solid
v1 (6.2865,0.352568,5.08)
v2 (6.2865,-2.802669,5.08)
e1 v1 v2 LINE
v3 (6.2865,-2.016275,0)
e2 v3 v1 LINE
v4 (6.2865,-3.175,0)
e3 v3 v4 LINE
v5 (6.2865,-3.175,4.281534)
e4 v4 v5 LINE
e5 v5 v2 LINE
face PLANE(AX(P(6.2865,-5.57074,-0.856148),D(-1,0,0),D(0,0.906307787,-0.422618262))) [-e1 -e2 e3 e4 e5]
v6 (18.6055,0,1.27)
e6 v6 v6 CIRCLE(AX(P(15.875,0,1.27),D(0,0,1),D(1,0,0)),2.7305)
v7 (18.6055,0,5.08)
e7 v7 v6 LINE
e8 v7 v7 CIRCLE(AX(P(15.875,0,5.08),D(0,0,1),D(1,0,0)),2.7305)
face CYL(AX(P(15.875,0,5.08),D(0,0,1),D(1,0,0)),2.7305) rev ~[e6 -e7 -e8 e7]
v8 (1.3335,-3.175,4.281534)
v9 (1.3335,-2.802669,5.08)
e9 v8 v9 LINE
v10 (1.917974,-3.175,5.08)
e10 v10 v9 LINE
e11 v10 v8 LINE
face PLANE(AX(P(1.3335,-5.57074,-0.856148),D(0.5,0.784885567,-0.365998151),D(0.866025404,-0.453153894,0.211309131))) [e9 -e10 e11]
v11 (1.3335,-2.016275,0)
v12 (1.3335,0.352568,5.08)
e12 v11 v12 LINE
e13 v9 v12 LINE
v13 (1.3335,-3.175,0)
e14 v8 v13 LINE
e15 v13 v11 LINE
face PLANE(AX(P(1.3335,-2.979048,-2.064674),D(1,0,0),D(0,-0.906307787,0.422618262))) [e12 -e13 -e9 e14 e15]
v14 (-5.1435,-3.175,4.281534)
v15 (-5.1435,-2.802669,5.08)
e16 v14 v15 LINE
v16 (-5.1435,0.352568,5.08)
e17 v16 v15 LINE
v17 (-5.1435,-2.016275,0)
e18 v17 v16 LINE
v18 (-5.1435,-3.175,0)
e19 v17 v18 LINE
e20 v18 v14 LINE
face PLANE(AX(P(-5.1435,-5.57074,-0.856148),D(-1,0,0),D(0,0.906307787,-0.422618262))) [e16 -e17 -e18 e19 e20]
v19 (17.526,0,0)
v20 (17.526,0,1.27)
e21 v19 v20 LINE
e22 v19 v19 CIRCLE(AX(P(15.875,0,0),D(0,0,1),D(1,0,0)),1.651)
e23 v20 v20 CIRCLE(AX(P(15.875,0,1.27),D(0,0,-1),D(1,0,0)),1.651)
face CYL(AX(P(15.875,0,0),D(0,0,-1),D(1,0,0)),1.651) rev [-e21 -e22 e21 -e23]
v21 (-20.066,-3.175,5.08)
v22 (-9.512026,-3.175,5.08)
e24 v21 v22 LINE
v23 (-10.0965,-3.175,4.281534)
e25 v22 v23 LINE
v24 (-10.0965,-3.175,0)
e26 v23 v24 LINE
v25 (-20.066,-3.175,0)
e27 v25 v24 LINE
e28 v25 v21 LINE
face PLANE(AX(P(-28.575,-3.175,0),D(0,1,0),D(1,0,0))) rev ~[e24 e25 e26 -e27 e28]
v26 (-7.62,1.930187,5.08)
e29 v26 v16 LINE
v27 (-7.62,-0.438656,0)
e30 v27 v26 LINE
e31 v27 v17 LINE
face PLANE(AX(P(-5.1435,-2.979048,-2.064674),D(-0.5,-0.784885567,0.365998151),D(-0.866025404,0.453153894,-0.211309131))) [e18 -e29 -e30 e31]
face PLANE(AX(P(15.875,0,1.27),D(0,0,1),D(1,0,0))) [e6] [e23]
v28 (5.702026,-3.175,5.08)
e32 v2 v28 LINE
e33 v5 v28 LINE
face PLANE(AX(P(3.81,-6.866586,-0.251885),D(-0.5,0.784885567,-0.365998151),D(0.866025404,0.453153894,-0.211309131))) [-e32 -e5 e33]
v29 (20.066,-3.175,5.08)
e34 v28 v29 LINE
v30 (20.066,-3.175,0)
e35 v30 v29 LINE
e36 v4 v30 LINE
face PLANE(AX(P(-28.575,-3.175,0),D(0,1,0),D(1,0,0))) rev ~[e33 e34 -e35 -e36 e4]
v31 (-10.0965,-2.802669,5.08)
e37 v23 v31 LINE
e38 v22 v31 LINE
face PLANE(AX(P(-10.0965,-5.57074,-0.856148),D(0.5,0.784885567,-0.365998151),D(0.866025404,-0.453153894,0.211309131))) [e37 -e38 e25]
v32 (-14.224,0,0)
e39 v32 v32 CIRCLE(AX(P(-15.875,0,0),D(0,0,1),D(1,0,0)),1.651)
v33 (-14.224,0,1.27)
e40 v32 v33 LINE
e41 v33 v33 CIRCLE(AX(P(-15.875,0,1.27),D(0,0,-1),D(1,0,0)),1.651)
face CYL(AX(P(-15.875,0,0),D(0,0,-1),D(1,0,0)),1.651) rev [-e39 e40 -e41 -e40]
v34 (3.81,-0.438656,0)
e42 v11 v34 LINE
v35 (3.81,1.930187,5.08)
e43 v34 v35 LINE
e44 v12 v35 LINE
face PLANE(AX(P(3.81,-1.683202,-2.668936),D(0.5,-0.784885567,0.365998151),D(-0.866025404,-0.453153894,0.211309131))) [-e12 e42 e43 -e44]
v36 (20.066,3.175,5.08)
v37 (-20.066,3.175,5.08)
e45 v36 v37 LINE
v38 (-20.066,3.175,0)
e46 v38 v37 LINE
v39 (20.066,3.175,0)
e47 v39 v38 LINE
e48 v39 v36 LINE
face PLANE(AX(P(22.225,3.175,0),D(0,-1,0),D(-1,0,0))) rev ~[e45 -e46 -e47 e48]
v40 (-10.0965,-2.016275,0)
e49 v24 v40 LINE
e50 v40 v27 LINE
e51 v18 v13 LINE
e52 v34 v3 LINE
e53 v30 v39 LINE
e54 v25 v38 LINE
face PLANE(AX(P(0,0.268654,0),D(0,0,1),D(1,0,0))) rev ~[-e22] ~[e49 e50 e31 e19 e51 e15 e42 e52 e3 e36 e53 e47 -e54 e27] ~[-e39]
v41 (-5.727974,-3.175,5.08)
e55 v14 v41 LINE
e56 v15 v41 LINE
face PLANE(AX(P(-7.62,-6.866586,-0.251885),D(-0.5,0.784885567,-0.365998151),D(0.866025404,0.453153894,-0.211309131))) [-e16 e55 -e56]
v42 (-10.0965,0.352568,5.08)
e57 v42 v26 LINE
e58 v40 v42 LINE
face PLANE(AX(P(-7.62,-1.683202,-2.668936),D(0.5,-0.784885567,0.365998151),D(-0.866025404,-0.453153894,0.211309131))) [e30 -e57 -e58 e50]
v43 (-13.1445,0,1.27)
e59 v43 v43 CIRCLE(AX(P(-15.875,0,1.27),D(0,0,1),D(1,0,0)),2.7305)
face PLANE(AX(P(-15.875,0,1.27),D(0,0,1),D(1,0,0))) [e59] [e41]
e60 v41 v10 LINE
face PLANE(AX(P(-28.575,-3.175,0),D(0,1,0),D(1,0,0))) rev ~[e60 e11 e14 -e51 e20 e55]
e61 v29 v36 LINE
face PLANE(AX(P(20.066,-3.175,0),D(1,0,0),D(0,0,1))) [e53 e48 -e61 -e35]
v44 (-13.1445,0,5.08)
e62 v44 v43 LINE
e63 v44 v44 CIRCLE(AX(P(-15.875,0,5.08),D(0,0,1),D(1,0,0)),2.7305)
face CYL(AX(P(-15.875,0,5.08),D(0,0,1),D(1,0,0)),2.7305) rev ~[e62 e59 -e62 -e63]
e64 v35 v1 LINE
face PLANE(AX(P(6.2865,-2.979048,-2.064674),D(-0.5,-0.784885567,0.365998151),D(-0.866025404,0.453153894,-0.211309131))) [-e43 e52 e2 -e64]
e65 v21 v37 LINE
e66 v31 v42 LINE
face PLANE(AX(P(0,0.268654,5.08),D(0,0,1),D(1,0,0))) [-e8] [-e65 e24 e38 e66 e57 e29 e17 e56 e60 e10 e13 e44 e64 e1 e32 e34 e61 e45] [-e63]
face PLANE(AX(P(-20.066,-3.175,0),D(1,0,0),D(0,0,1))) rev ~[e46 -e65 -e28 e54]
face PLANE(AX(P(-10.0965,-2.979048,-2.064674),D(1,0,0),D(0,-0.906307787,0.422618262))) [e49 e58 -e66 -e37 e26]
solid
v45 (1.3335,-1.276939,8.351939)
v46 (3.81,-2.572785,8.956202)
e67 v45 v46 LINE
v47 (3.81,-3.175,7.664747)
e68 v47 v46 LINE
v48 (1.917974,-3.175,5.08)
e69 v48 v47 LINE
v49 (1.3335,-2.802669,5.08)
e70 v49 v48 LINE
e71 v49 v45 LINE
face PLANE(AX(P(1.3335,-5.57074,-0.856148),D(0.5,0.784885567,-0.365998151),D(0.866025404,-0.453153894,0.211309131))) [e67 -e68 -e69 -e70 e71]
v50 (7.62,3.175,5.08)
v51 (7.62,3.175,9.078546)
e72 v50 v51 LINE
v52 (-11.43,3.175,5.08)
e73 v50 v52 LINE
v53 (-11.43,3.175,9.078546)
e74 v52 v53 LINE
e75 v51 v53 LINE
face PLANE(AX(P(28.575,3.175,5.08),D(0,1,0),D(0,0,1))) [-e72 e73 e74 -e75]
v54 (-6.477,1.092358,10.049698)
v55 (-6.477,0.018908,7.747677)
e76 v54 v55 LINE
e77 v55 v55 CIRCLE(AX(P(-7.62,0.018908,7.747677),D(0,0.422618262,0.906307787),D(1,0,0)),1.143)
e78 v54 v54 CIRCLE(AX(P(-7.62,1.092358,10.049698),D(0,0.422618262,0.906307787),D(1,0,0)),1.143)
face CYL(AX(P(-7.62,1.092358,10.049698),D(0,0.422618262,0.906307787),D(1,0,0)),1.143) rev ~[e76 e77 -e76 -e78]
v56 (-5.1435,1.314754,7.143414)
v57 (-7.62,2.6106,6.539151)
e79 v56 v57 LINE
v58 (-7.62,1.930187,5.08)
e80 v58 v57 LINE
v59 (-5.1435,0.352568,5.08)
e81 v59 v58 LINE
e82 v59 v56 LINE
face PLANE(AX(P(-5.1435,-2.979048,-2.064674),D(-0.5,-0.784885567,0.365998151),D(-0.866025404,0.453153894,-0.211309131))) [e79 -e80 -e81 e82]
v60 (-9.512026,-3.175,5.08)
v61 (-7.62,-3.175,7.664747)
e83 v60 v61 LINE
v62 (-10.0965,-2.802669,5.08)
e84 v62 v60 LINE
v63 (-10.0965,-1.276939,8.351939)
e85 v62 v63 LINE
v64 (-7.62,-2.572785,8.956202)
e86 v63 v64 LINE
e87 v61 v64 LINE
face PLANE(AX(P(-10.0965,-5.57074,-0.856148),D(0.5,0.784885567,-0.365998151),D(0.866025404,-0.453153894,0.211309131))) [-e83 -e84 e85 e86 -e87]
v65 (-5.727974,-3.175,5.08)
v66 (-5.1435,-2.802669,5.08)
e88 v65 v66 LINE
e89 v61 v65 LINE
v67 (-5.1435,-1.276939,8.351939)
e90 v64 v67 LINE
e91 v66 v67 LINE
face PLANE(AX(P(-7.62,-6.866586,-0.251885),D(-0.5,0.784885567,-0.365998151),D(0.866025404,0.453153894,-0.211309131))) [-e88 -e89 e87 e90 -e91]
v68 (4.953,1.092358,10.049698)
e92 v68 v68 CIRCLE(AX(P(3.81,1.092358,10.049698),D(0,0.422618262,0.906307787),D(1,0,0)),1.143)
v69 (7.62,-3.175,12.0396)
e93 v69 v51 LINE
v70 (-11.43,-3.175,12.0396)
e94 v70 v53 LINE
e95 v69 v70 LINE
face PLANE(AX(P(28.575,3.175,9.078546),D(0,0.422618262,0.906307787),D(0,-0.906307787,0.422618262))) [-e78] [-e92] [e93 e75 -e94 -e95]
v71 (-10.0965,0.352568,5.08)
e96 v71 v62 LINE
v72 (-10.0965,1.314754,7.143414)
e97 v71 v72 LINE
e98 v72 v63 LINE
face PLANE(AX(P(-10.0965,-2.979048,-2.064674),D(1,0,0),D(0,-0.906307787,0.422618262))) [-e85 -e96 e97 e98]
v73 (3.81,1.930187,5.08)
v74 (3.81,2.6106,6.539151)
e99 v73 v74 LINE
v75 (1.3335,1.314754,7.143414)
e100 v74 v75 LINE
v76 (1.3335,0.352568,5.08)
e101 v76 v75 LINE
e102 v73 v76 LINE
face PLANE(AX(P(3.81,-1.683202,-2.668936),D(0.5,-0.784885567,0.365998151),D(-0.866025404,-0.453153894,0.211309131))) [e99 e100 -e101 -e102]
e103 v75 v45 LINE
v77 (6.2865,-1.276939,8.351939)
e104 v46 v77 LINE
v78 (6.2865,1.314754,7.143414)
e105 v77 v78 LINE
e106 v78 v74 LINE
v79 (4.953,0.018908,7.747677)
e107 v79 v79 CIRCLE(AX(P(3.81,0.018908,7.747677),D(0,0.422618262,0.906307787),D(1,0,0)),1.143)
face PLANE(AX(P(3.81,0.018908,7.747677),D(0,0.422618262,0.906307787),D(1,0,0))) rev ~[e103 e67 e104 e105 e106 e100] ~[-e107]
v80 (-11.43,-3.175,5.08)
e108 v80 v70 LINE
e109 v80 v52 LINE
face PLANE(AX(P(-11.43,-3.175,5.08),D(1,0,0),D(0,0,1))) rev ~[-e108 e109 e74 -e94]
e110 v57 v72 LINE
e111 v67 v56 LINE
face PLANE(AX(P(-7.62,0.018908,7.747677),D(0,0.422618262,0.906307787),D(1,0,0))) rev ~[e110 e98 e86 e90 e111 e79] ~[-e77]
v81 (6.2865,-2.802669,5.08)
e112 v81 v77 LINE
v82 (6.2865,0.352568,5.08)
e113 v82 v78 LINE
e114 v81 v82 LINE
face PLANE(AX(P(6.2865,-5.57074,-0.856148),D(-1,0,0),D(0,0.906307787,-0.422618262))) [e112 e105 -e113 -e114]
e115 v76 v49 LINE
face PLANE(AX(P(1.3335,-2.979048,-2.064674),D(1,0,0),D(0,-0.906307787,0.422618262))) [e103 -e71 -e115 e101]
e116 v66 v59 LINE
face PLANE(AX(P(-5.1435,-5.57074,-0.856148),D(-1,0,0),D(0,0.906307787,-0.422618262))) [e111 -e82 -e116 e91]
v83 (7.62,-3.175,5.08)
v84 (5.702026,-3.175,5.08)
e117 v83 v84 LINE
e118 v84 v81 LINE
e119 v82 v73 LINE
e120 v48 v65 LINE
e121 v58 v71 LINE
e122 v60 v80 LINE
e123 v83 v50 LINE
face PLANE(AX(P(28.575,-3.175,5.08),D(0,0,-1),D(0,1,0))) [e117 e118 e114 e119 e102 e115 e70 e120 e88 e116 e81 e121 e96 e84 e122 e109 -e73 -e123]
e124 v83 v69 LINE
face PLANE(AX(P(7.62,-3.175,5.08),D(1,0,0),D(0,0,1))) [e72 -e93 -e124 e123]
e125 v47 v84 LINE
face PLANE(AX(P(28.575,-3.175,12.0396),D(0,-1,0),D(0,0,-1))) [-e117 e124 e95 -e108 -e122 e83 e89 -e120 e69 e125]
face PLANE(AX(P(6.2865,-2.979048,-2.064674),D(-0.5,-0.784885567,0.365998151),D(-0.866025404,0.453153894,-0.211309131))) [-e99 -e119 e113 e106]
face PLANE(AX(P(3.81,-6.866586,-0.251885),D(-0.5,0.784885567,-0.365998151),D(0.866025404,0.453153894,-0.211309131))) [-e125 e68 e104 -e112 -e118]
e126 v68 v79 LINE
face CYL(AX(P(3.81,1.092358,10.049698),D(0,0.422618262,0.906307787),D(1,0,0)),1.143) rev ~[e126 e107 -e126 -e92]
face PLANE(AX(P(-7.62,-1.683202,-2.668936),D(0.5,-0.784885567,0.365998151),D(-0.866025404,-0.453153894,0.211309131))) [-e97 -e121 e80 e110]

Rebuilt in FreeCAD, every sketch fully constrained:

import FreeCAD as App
import Part
import Sketcher

V = App.Vector
Q = App.Units.Quantity


def add_polygon(sketch, points):
    """Adds a closed chain of lines whose ends are joined by coincident constraints."""
    first, n = sketch.GeometryCount, len(points)
    for a, b in zip(points, points[1:] + points[:1]):
        sketch.addGeometry(Part.LineSegment(App.Vector(*a, 0), App.Vector(*b, 0)), False)
    for i in range(n):
        sketch.addConstraint(Sketcher.Constraint("Coincident", first + i, 2, first + (i + 1) % n, 1))

doc = App.newDocument("Part")
body = doc.addObject("PartDesign::Body", "Body")

sketch1 = body.newObject("Sketcher::SketchObject", "Sketch")
sketch1.AttachmentSupport = (doc.getObject("XY_Plane"), [""])
sketch1.MapMode = "FlatFace"
add_polygon(sketch1, [(-28.6, -3.2), (28.6, -3.2), (28.6, 4.4), (22.2, 4.4), (22.2, 3.2), (-22.2, 3.2), (-22.2, 4.4), (-28.6, 4.4)])
sketch1.addGeometry(Part.Circle(V(-15.9, 0, 0), V(0, 0, 1), 1.7), False)
sketch1.addGeometry(Part.Circle(V(15.9, 0, 0), V(0, 0, 1), 1.7), False)
sketch1.addConstraint(Sketcher.Constraint("Horizontal", 0))
sketch1.addConstraint(Sketcher.Constraint("Vertical", 1))
sketch1.addConstraint(Sketcher.Constraint("Horizontal", 2))
sketch1.addConstraint(Sketcher.Constraint("Vertical", 3))
sketch1.addConstraint(Sketcher.Constraint("Horizontal", 4))
sketch1.addConstraint(Sketcher.Constraint("Vertical", 5))
sketch1.addConstraint(Sketcher.Constraint("Horizontal", 6))
sketch1.addConstraint(Sketcher.Constraint("Vertical", 7))
sketch1.addConstraint(Sketcher.Constraint("Equal", 8, 9))
sketch1.addConstraint(Sketcher.Constraint("Symmetric", 8, 3, 9, 3, -1, 1))
sketch1.addConstraint(Sketcher.Constraint("Symmetric", 2, 2, 5, 2, -2))
sketch1.addConstraint(Sketcher.Constraint("PointOnObject", 8, 3, -1))
sketch1.addConstraint(Sketcher.Constraint("Equal", 2, 6))
sketch1.addConstraint(Sketcher.Constraint("Diameter", 8, Q("0.13 in")))
sketch1.addConstraint(Sketcher.Constraint("DistanceY", 1, 1, 1, 2, Q("0.3 in")))
sketch1.addConstraint(Sketcher.Constraint("DistanceX", 4, 2, 1, 2, Q("2 in")))
sketch1.addConstraint(Sketcher.Constraint("DistanceX", 0, 1, 0, 2, Q("2.25 in")))
sketch1.addConstraint(Sketcher.Constraint("DistanceY", 3, 2, 3, 1, Q("0.05 in")))
sketch1.addConstraint(Sketcher.Constraint("DistanceX", 9, 3, 0, 2, Q("0.5 in")))
sketch1.addConstraint(Sketcher.Constraint("DistanceY", 0, 2, -1, 1, Q("0.125 in")))
pad1 = body.newObject("PartDesign::Pad", "Pad")
pad1.Profile = sketch1
pad1.Length = Q("0.2 in")

sketch2 = body.newObject("Sketcher::SketchObject", "Sketch001")
sketch2.AttachmentSupport = (doc.getObject("XY_Plane"), [""])
sketch2.MapMode = "FlatFace"
sketch2.AttachmentOffset = App.Placement(V(0, 0, 0.2 * 25.4), App.Rotation())
sketch2.addGeometry(Part.Circle(V(-15.9, 0, 0), V(0, 0, 1), 2.7), False)
sketch2.addGeometry(Part.Circle(V(15.9, 0, 0), V(0, 0, 1), 2.7), False)
sketch2.addConstraint(Sketcher.Constraint("Equal", 0, 1))
sketch2.addConstraint(Sketcher.Constraint("Symmetric", 0, 3, 1, 3, -1, 1))
sketch2.addConstraint(Sketcher.Constraint("PointOnObject", 0, 3, -1))
sketch2.addConstraint(Sketcher.Constraint("Diameter", 0, Q("0.215 in")))
sketch2.addConstraint(Sketcher.Constraint("DistanceX", 0, 3, 1, 3, Q("1.25 in")))
pocket1 = body.newObject("PartDesign::Pocket", "Pocket")
pocket1.Profile = sketch2
pocket1.Length = Q("0.15 in")

sketch3 = body.newObject("Sketcher::SketchObject", "Sketch002")
sketch3.AttachmentSupport = (doc.getObject("XZ_Plane"), [""])
sketch3.MapMode = "FlatFace"
sketch3.AttachmentOffset = App.Placement(V(0, 0, 0.125 * 25.4), App.Rotation())
add_polygon(sketch3, [(-29, 5), (-29, 0), (-20, 0), (-20, 5)])
add_polygon(sketch3, [(20, 5), (20, 0), (29, 0), (29, 5)])
sketch3.addConstraint(Sketcher.Constraint("Vertical", 0))
sketch3.addConstraint(Sketcher.Constraint("Horizontal", 1))
sketch3.addConstraint(Sketcher.Constraint("Vertical", 2))
sketch3.addConstraint(Sketcher.Constraint("Horizontal", 3))
sketch3.addConstraint(Sketcher.Constraint("Vertical", 4))
sketch3.addConstraint(Sketcher.Constraint("Horizontal", 5))
sketch3.addConstraint(Sketcher.Constraint("Vertical", 6))
sketch3.addConstraint(Sketcher.Constraint("Horizontal", 7))
sketch3.addConstraint(Sketcher.Constraint("Symmetric", 1, 2, 4, 2, -1, 1))
sketch3.addConstraint(Sketcher.Constraint("Symmetric", 0, 2, 5, 2, -2))
sketch3.addConstraint(Sketcher.Constraint("Horizontal", 3, 2, 6, 2))
sketch3.addConstraint(Sketcher.Constraint("DistanceY", 0, 2, 0, 1, Q("0.2 in")))
sketch3.addConstraint(Sketcher.Constraint("DistanceX", 1, 1, 1, 2, Q("0.335 in")))
sketch3.addConstraint(Sketcher.Constraint("DistanceX", 1, 2, -1, 1, Q("0.79 in")))
pocket2 = body.newObject("PartDesign::Pocket", "Pocket001")
pocket2.Profile = sketch3
pocket2.Type = "ThroughAll"
body2 = doc.addObject("PartDesign::Body", "Body001")

sketch4 = body2.newObject("Sketcher::SketchObject", "Sketch003")
sketch4.AttachmentSupport = (doc.getObject("YZ_Plane001"), [""])
sketch4.MapMode = "FlatFace"
sketch4.AttachmentOffset = App.Placement(V(0, 0, 1.125 * 25.4), App.Rotation())
add_polygon(sketch4, [(-3.2, 12), (-3.2, 5.1), (3.2, 5.1), (3.2, 9.1)])
sketch4.addConstraint(Sketcher.Constraint("Vertical", 0))
sketch4.addConstraint(Sketcher.Constraint("Horizontal", 1))
sketch4.addConstraint(Sketcher.Constraint("Vertical", 2))
sketch4.addConstraint(Sketcher.Constraint("Angle", 3, Q("155 deg")))
sketch4.addConstraint(Sketcher.Constraint("DistanceX", 1, 1, 1, 2, Q("0.25 in")))
sketch4.addConstraint(Sketcher.Constraint("DistanceY", -1, 1, 0, 2, Q("0.2 in")))
sketch4.addConstraint(Sketcher.Constraint("DistanceY", 0, 2, 0, 1, Q("0.274 in")))
sketch4.addConstraint(Sketcher.Constraint("DistanceX", 0, 2, -1, 1, Q("0.125 in")))
pad2 = body2.newObject("PartDesign::Pad", "Pad001")
pad2.Profile = sketch4
pad2.Length = Q("2.25 in")
pad2.Reversed = True

sketch5 = body2.newObject("Sketcher::SketchObject", "Sketch004")
sketch5.AttachmentSupport = (doc.getObject("XZ_Plane001"), [""])
sketch5.MapMode = "FlatFace"
sketch5.AttachmentOffset = App.Placement(V(0, 0, 0.125 * 25.4), App.Rotation())
add_polygon(sketch5, [(-29, 12), (-29, 5), (-11, 5), (-11, 12)])
add_polygon(sketch5, [(8, 12), (8, 5), (29, 5), (29, 12)])
sketch5.addConstraint(Sketcher.Constraint("Vertical", 0))
sketch5.addConstraint(Sketcher.Constraint("Horizontal", 1))
sketch5.addConstraint(Sketcher.Constraint("Vertical", 2))
sketch5.addConstraint(Sketcher.Constraint("Horizontal", 3))
sketch5.addConstraint(Sketcher.Constraint("Vertical", 4))
sketch5.addConstraint(Sketcher.Constraint("Horizontal", 5))
sketch5.addConstraint(Sketcher.Constraint("Vertical", 6))
sketch5.addConstraint(Sketcher.Constraint("Horizontal", 7))
sketch5.addConstraint(Sketcher.Constraint("Symmetric", 0, 2, 5, 2, -2))
sketch5.addConstraint(Sketcher.Constraint("Horizontal", 3, 2, 6, 2))
sketch5.addConstraint(Sketcher.Constraint("DistanceY", -1, 1, 0, 2, Q("0.2 in")))
sketch5.addConstraint(Sketcher.Constraint("DistanceX", -1, 1, 4, 2, Q("0.3 in")))
sketch5.addConstraint(Sketcher.Constraint("DistanceX", 1, 1, 1, 2, Q("0.675 in")))
sketch5.addConstraint(Sketcher.Constraint("DistanceX", 5, 1, 5, 2, Q("0.825 in")))
sketch5.addConstraint(Sketcher.Constraint("DistanceY", 0, 2, 0, 1, Q("0.274 in")))
pocket3 = body2.newObject("PartDesign::Pocket", "Pocket002")
pocket3.Profile = sketch5
pocket3.Type = "ThroughAll"
body3 = doc.addObject("PartDesign::Body", "Body002")
body3.AllowCompound = True

sketch6 = body3.newObject("Sketcher::SketchObject", "Sketch005")
sketch6.Placement = App.Placement(V(0, 4.04436, 8.673157), App.Rotation(V(1, 0, 0), V(0, 0.906307787, -0.422618262), V(0, 0.422618262, 0.906307787), "ZXY"))
sketch6.addGeometry(Part.Circle(V(-7.6, -3.3, 0), V(0, 0, 1), 1.1), False)
sketch6.addGeometry(Part.Circle(V(3.8, -3.3, 0), V(0, 0, 1), 1.1), False)
sketch6.addConstraint(Sketcher.Constraint("Equal", 0, 1))
sketch6.addConstraint(Sketcher.Constraint("Horizontal", 0, 3, 1, 3))
sketch6.addConstraint(Sketcher.Constraint("Diameter", 0, Q("0.09 in")))
sketch6.addConstraint(Sketcher.Constraint("DistanceX", 0, 3, -1, 1, Q("0.3 in")))
sketch6.addConstraint(Sketcher.Constraint("DistanceX", -1, 1, 1, 3, Q("0.15 in")))
sketch6.addConstraint(Sketcher.Constraint("DistanceY", 0, 3, -1, 1, Q("3.257174 mm")))
pad3 = body3.newObject("PartDesign::Pad", "Pad002")
pad3.Profile = sketch6
pad3.Length = 10.912583
pad3.Reversed = True
doc.recompute()

body4 = doc.addObject("PartDesign::Body", "Body003")
body4.BaseFeature = body3
boolean = body.newObject("PartDesign::Boolean", "Boolean")
boolean.Type = "Cut"
boolean.addObjects([body4])
doc.recompute()

boolean2 = body2.newObject("PartDesign::Boolean", "Boolean001")
boolean2.Type = "Cut"
boolean2.addObjects([body3])
body5 = doc.addObject("PartDesign::Body", "Body004")
body5.AllowCompound = True

sketch7 = body5.newObject("Sketcher::SketchObject", "Sketch006")
sketch7.Placement = App.Placement(V(0, -1.322892, -2.836952), App.Rotation(V(1, 0, 0), V(0, 0.906307787, -0.422618262), V(0, 0.422618262, 0.906307787), "ZXY"))
add_polygon(sketch7, [(-5.1, -4.7), (-5.1, -1.8), (-7.6, -0.4), (-10.1, -1.8), (-10.1, -4.7), (-7.6, -6.1)])
add_polygon(sketch7, [(6.3, -1.8), (3.8, -0.4), (1.3, -1.8), (1.3, -4.7), (3.8, -6.1), (6.3, -4.7)])
sketch7.addConstraint(Sketcher.Constraint("Vertical", 0))
sketch7.addConstraint(Sketcher.Constraint("Vertical", 3))
sketch7.addConstraint(Sketcher.Constraint("Vertical", 8))
sketch7.addConstraint(Sketcher.Constraint("Vertical", 11))
sketch7.addConstraint(Sketcher.Constraint("Parallel", 1, 4))
sketch7.addConstraint(Sketcher.Constraint("Parallel", 2, 5))
sketch7.addConstraint(Sketcher.Constraint("Parallel", 4, 6))
sketch7.addConstraint(Sketcher.Constraint("Parallel", 5, 7))
sketch7.addConstraint(Sketcher.Constraint("Parallel", 6, 9))
sketch7.addConstraint(Sketcher.Constraint("Parallel", 7, 10))
sketch7.addConstraint(Sketcher.Constraint("Horizontal", 0, 2, 2, 2))
sketch7.addConstraint(Sketcher.Constraint("Horizontal", 3, 2, 5, 2))
sketch7.addConstraint(Sketcher.Constraint("Horizontal", 1, 2, 6, 2))
sketch7.addConstraint(Sketcher.Constraint("Horizontal", 2, 2, 7, 2))
sketch7.addConstraint(Sketcher.Constraint("Horizontal", 5, 2, 8, 2))
sketch7.addConstraint(Sketcher.Constraint("Horizontal", 4, 2, 9, 2))
sketch7.addConstraint(Sketcher.Constraint("Horizontal", 8, 2, 10, 2))
sketch7.addConstraint(Sketcher.Constraint("Vertical", 1, 2, 4, 2))
sketch7.addConstraint(Sketcher.Constraint("Angle", 1, Q("150 deg")))
sketch7.addConstraint(Sketcher.Constraint("DistanceX", 1, 2, -1, 1, Q("0.3 in")))
sketch7.addConstraint(Sketcher.Constraint("DistanceX", -1, 1, 6, 2, Q("0.15 in")))
sketch7.addConstraint(Sketcher.Constraint("DistanceX", 2, 2, 0, 2, Q("0.195 in")))
sketch7.addConstraint(Sketcher.Constraint("DistanceY", 0, 1, 0, 2, Q("2.859616 mm")))
sketch7.addConstraint(Sketcher.Constraint("DistanceY", 3, 2, -1, 1, Q("4.686981 mm")))
pad4 = body5.newObject("PartDesign::Pad", "Pad003")
pad4.Profile = sketch7
pad4.Length = Q("0.4 in")
doc.recompute()

body6 = doc.addObject("PartDesign::Body", "Body005")
body6.BaseFeature = body5
boolean3 = body.newObject("PartDesign::Boolean", "Boolean002")
boolean3.Type = "Cut"
boolean3.addObjects([body6])
doc.recompute()

boolean4 = body2.newObject("PartDesign::Boolean", "Boolean003")
boolean4.Type = "Cut"
boolean4.addObjects([body5])

doc.recompute()
